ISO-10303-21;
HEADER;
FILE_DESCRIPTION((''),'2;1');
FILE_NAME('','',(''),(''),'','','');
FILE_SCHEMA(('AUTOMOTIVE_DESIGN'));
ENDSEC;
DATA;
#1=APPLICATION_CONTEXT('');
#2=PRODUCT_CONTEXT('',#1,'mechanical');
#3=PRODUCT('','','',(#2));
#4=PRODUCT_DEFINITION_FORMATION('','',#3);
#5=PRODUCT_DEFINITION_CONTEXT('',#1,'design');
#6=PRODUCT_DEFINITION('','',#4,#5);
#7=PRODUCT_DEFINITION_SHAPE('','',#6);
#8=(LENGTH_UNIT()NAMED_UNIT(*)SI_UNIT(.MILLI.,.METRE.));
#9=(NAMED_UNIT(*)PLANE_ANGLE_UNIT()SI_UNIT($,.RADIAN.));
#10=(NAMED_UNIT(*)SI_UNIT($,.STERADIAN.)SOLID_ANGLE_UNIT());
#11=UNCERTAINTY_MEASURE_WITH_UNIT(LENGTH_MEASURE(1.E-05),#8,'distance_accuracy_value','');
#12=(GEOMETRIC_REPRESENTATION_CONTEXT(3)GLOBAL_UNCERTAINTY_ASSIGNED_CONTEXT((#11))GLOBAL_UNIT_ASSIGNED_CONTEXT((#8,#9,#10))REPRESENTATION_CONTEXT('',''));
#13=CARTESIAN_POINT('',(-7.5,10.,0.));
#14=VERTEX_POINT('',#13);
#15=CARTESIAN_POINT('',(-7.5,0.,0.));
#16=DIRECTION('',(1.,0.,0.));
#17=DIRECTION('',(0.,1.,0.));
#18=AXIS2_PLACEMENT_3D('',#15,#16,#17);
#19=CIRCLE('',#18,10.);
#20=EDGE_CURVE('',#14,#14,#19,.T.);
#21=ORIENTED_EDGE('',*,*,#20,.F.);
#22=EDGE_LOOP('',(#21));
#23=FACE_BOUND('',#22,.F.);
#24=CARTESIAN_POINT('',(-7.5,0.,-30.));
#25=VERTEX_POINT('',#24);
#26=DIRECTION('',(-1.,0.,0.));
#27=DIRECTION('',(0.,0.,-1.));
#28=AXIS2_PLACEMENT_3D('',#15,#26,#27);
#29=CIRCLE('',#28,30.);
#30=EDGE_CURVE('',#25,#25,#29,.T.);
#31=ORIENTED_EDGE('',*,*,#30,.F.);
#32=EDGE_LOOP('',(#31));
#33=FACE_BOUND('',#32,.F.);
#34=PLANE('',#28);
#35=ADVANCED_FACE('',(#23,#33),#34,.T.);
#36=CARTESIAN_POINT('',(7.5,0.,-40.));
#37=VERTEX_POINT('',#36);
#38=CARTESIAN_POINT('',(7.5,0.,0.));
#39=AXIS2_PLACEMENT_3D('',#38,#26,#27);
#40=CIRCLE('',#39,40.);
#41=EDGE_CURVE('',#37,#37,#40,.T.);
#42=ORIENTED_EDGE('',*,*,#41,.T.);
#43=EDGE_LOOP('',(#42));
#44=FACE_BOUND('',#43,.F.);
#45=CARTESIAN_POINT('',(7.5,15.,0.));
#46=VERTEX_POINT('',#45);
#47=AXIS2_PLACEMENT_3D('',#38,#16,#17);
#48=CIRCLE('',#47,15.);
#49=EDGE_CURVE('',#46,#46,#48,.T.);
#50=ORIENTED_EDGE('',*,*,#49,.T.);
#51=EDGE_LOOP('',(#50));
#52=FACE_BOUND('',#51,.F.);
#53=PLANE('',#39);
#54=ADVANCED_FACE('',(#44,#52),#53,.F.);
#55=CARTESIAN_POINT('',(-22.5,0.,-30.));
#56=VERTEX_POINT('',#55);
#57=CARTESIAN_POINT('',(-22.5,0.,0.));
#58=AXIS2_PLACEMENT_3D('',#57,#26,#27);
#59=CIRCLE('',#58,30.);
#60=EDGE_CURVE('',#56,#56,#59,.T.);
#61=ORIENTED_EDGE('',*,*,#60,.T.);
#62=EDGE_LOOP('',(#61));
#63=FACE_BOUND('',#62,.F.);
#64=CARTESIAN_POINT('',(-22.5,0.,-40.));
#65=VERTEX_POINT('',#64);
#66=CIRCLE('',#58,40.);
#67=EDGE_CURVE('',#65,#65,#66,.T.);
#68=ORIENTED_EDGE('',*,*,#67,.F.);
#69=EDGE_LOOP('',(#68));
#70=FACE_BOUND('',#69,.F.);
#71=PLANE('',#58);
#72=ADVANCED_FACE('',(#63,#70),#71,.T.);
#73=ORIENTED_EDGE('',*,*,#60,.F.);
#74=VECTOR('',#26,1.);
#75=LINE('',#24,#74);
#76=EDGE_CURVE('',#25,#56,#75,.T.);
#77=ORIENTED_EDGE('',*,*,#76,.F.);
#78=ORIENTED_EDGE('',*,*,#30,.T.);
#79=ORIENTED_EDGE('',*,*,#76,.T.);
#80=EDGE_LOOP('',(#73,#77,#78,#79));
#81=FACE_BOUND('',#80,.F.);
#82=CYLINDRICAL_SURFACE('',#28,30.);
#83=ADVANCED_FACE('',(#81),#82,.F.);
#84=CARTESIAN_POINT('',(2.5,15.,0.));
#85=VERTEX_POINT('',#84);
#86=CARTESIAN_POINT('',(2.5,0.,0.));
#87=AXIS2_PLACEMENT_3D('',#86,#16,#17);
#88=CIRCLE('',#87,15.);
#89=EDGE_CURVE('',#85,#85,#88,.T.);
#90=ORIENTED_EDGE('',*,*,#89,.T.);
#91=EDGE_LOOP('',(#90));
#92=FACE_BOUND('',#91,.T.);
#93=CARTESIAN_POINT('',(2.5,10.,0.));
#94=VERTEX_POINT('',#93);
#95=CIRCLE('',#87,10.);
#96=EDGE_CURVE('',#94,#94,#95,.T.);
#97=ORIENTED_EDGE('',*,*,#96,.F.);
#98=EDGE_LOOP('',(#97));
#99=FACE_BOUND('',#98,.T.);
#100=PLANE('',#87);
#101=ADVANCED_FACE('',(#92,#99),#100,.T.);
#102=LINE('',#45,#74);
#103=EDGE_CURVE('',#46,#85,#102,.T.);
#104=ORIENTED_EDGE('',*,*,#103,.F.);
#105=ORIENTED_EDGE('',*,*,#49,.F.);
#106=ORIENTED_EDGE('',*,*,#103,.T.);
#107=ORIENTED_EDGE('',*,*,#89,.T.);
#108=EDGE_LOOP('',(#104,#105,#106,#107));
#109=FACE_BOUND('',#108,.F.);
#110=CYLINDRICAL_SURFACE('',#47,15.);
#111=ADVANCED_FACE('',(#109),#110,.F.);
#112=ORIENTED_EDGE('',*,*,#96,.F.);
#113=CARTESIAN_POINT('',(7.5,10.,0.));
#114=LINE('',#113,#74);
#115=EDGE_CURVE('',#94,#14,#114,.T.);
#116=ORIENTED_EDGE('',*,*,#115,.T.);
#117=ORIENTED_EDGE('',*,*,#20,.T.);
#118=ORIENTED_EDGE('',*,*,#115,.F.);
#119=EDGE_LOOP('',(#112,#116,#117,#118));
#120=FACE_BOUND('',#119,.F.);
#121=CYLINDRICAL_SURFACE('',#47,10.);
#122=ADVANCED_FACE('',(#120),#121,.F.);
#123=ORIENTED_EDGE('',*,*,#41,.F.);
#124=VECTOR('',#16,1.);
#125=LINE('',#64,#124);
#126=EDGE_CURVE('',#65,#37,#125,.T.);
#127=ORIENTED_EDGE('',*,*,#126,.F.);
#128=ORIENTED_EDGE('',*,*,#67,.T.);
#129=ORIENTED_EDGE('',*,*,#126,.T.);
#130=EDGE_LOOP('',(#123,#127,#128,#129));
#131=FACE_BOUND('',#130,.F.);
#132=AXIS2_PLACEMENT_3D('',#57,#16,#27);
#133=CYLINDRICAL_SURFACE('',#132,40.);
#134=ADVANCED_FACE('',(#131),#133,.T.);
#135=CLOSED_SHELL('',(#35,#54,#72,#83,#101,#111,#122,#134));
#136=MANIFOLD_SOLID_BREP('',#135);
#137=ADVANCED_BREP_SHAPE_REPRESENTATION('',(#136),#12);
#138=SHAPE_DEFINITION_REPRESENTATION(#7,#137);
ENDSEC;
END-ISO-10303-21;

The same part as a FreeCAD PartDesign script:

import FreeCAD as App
import Part
import Sketcher

doc = App.newDocument("Part")
body = doc.addObject("PartDesign::Body", "Body")

# Sketch on XZ plane
sketch1 = body.newObject("Sketcher::SketchObject", "Sketch")
sketch1.AttachmentSupport = (doc.getObject("XZ_Plane"), [""])
sketch1.MapMode = "FlatFace"
sketch1.addGeometry([
    Part.LineSegment(App.Vector(8, 0, 0), App.Vector(-8, 0, 0)),  # 0
    Part.LineSegment(App.Vector(-8, 0, 0), App.Vector(-8, -30, 0)),  # 1
    Part.LineSegment(App.Vector(-8, -30, 0), App.Vector(-22, -30, 0)),  # 2
    Part.LineSegment(App.Vector(-22, -30, 0), App.Vector(-22, -40, 0)),  # 3
    Part.LineSegment(App.Vector(-22, -40, 0), App.Vector(8, -40, 0)),  # 4
    Part.LineSegment(App.Vector(8, -40, 0), App.Vector(8, 0, 0)),  # 5
], False)
sketch1.addConstraint([
    Sketcher.Constraint("Coincident", 0, 2, 1, 1),
    Sketcher.Constraint("Coincident", 1, 2, 2, 1),
    Sketcher.Constraint("Coincident", 2, 2, 3, 1),
    Sketcher.Constraint("Coincident", 3, 2, 4, 1),
    Sketcher.Constraint("Coincident", 4, 2, 5, 1),
    Sketcher.Constraint("Coincident", 5, 2, 0, 1),
    Sketcher.Constraint("Horizontal", 0),
    Sketcher.Constraint("Vertical", 1),
    Sketcher.Constraint("Horizontal", 2),
    Sketcher.Constraint("Vertical", 3),
    Sketcher.Constraint("Horizontal", 4),
    Sketcher.Constraint("Vertical", 5),
    Sketcher.Constraint("Symmetric", 0, 2, 5, 2, -1, 1),
    Sketcher.Constraint("Equal", 0, 2),
    Sketcher.Constraint("Equal", 4, 1),
    Sketcher.Constraint("DistanceX", 0, 2, 0, 1, 15.0),
    Sketcher.Constraint("DistanceY", 3, 2, 3, 1, 10.0),
])
revolution = body.newObject("PartDesign::Revolution", "Revolution")
revolution.Profile = sketch1
revolution.ReferenceAxis = (sketch1, ["H_Axis"])
revolution.Angle = 360

# Sketch on YZ plane
sketch2 = body.newObject("Sketcher::SketchObject", "Sketch001")
sketch2.AttachmentSupport = (doc.getObject("YZ_Plane"), [""])
sketch2.MapMode = "FlatFace"
sketch2.AttachmentOffset = App.Placement(App.Vector(0, 0, 7.5), App.Rotation())
sketch2.addGeometry(Part.Circle(App.Vector(0, 0, 0), App.Vector(0, 0, 1), 10), False)
sketch2.addConstraint([
    Sketcher.Constraint("Coincident", 0, 3, -1, 1),
    Sketcher.Constraint("Diameter", 0, 20.0),
])
pocket1 = body.newObject("PartDesign::Pocket", "Pocket")
pocket1.Profile = sketch2
pocket1.Length = 25

# Sketch on YZ plane
sketch3 = body.newObject("Sketcher::SketchObject", "Sketch002")
sketch3.AttachmentSupport = (doc.getObject("YZ_Plane"), [""])
sketch3.MapMode = "FlatFace"
sketch3.AttachmentOffset = App.Placement(App.Vector(0, 0, 7.5), App.Rotation())
sketch3.addGeometry([
    Part.Circle(App.Vector(0, 0, 0), App.Vector(0, 0, 1), 15),
    Part.Circle(App.Vector(0, 0, 0), App.Vector(0, 0, 1), 10),
], False)
sketch3.addConstraint([
    Sketcher.Constraint("Coincident", 0, 3, -1, 1),
    Sketcher.Constraint("Coincident", 1, 3, -1, 1),
    Sketcher.Constraint("Diameter", 0, 30.0),
    Sketcher.Constraint("Diameter", 1, 20.0),
])
pocket2 = body.newObject("PartDesign::Pocket", "Pocket001")
pocket2.Profile = sketch3
pocket2.Length = 5

doc.recompute()
